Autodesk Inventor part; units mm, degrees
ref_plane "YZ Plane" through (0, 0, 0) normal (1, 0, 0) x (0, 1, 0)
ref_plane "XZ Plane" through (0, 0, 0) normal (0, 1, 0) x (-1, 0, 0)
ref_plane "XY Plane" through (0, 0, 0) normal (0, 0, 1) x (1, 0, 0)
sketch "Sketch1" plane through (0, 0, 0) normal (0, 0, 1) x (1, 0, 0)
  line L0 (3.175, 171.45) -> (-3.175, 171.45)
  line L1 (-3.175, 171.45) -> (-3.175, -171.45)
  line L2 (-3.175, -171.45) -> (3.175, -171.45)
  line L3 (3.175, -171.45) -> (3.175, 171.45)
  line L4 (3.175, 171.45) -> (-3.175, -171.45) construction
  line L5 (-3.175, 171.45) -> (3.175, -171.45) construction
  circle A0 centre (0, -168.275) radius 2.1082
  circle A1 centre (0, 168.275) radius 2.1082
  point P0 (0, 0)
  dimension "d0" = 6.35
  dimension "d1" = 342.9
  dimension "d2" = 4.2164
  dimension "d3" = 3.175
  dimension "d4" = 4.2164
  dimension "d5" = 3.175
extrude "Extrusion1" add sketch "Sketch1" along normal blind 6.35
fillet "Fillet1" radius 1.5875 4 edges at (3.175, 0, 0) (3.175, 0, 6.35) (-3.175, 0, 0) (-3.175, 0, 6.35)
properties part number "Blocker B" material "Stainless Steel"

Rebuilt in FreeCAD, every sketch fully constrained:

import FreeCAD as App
import Part
import Sketcher

V = App.Vector
Q = App.Units.Quantity


def edges_at(feature, points):
    """Names of the edges that pass closest to the given points."""
    edges = feature.Shape.Edges
    near = lambda p: min(range(len(edges)), key=lambda i: edges[i].distToShape(Part.Vertex(*p))[0])
    return sorted({f"Edge{near(p) + 1}" for p in points})


def add_polygon(sketch, points):
    """Adds a closed chain of lines whose ends are joined by coincident constraints."""
    first, n = sketch.GeometryCount, len(points)
    for a, b in zip(points, points[1:] + points[:1]):
        sketch.addGeometry(Part.LineSegment(App.Vector(*a, 0), App.Vector(*b, 0)), False)
    for i in range(n):
        sketch.addConstraint(Sketcher.Constraint("Coincident", first + i, 2, first + (i + 1) % n, 1))

doc = App.newDocument("Part")
body = doc.addObject("PartDesign::Body", "Body")

# Sketch on XY plane
sketch1 = body.newObject("Sketcher::SketchObject", "Sketch")
sketch1.AttachmentSupport = (doc.getObject("XY_Plane"), [""])
sketch1.MapMode = "FlatFace"
add_polygon(sketch1, [(3.175, -171.45), (3.175, 171.45), (-3.175, 171.45), (-3.175, -171.45)])  # lines 0-3
sketch1.addGeometry(Part.Circle(V(0, -168.275, 0), V(0, 0, 1), 2.1082), False)  # 4
sketch1.addGeometry(Part.Circle(V(0, 168.275, 0), V(0, 0, 1), 2.1082), False)  # 5
sketch1.addConstraint([
    Sketcher.Constraint("Vertical", 0),
    Sketcher.Constraint("Horizontal", 1),
    Sketcher.Constraint("Vertical", 2),
    Sketcher.Constraint("Horizontal", 3),
    Sketcher.Constraint("Equal", 4, 5),
    Sketcher.Constraint("Symmetric", 4, 3, 5, 3, -1, 1),
    Sketcher.Constraint("Symmetric", 0, 2, 2, 2, -1, 1),
    Sketcher.Constraint("PointOnObject", 4, 3, -2),
    Sketcher.Constraint("Diameter", 4, Q("0.166 in")),
    Sketcher.Constraint("DistanceY", 0, 1, 0, 2, Q("13.5 in")),
    Sketcher.Constraint("DistanceX", 1, 2, 1, 1, Q("0.25 in")),
    Sketcher.Constraint("DistanceY", 5, 3, 0, 2, Q("0.125 in")),
])
pad1 = body.newObject("PartDesign::Pad", "Pad")
pad1.Profile = sketch1
pad1.Length = Q("0.25 in")
doc.recompute()

fillet = body.newObject("PartDesign::Fillet", "Fillet")
fillet.Base = (pad1, edges_at(pad1, [
    (3.175, 0, 0),
    (3.175, 0, 6.35),
    (-3.175, 0, 0),
    (-3.175, 0, 6.35),
]))
fillet.Radius = Q("0.0625 in")

doc.recompute()
